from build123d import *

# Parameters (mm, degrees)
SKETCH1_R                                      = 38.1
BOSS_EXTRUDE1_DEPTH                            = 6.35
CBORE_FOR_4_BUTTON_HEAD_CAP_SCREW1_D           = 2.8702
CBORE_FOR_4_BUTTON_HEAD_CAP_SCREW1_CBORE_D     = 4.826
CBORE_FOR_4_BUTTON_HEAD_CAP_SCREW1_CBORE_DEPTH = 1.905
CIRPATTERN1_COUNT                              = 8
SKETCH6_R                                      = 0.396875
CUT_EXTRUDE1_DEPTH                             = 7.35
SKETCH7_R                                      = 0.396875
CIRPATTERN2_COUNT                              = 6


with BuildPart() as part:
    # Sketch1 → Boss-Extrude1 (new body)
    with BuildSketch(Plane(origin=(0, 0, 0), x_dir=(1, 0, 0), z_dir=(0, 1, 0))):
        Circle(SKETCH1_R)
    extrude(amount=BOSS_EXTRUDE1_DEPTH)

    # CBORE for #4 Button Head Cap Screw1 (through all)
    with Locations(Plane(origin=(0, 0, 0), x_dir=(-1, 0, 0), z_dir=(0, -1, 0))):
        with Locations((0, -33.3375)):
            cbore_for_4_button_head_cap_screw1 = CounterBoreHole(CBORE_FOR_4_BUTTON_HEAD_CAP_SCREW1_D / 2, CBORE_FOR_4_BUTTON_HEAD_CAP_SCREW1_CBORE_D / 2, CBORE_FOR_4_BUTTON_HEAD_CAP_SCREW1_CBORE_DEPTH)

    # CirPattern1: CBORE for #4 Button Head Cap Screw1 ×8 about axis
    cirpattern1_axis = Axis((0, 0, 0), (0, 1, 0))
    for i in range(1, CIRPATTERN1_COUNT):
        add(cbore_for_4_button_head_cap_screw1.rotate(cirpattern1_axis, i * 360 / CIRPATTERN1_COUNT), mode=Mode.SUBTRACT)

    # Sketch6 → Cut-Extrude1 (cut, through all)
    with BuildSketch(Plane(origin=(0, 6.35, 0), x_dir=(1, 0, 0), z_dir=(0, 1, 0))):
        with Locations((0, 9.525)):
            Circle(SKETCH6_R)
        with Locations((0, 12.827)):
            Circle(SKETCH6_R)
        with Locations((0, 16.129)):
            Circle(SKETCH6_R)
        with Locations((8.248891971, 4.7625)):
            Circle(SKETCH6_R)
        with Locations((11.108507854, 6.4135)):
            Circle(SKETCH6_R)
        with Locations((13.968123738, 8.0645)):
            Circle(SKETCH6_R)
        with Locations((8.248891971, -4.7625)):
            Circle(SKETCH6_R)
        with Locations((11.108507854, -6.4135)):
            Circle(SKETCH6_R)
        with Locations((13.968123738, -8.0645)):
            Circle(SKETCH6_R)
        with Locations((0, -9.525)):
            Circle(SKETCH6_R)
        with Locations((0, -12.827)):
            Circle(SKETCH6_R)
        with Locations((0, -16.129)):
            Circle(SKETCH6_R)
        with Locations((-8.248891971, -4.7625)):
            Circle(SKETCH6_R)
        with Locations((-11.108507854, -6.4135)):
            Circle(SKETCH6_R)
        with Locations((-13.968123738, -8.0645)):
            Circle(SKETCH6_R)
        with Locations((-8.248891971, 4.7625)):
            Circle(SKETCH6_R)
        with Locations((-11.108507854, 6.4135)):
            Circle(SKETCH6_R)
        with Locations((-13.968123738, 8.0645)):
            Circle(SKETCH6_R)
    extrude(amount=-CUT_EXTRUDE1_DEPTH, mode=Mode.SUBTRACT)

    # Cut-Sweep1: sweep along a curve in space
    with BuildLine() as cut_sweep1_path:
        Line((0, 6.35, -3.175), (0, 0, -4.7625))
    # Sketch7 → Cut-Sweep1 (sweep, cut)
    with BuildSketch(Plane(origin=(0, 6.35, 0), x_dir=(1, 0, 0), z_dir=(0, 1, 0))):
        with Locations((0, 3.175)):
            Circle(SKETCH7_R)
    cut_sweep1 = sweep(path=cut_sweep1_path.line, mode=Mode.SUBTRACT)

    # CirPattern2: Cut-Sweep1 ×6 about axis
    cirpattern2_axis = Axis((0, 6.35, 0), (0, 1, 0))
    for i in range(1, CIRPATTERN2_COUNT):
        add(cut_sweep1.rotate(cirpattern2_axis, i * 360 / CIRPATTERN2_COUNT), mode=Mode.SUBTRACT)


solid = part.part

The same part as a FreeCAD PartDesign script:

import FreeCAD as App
import Part
import Sketcher
from FreeCAD import Vector
Q = App.Units.Quantity

doc = App.newDocument("Part")
params = doc.addObject("Spreadsheet::Sheet", "Params")
for row, (alias, value) in enumerate([
    ("sketch1_diameter", "3 in"),
    ("pad1_length", "0.25 in"),
    ("sketch2_diameter", "0.113 in"),
    ("hole_diameter", "0.113 in"),
    ("hole_cbore_diameter", "0.19 in"),
    ("hole_cbore_depth", "0.075 in"),
    ("sketch3_diameter", "0.03125 in"),
    ("sketch4_diameter", "0.03125 in"),
], start=1):
    params.set(f"A{row}", alias)
    params.set(f"B{row}", "=" + value)
    params.setAlias(f"B{row}", alias)

body = doc.addObject("PartDesign::Body", "Body")

# Sketch on XZ plane
sketch1 = body.newObject("Sketcher::SketchObject", "Sketch")
sketch1.AttachmentSupport = (doc.getObject("XZ_Plane"), [""])
sketch1.MapMode = "FlatFace"
sketch1.addGeometry(Part.Circle(Vector(0, 0, 0), Vector(0, 0, 1), 38), False)
sketch1.addConstraint([
    Sketcher.Constraint("Coincident", 0, 3, -1, 1),
    Sketcher.Constraint("Diameter", 0, Q("3 in")),
])
sketch1.setExpression("Constraints[1]", "Params.sketch1_diameter")
pad1 = body.newObject("PartDesign::Pad", "Pad")
pad1.Profile = sketch1
pad1.setExpression("Length", "Params.pad1_length")
pad1.Reversed = True

# Sketch on XZ plane
sketch2 = body.newObject("Sketcher::SketchObject", "Sketch001")
sketch2.AttachmentSupport = (doc.getObject("XZ_Plane"), [""])
sketch2.MapMode = "FlatFace"
sketch2.addGeometry(Part.Circle(Vector(0, 33.3, 0), Vector(0, 0, 1), 1.4), False)
sketch2.addConstraint([
    Sketcher.Constraint("PointOnObject", 0, 3, -2),
    Sketcher.Constraint("Diameter", 0, Q("0.113 in")),
    Sketcher.Constraint("DistanceY", -1, 1, 0, 3, Q("1.3125 in")),
])
sketch2.setExpression("Constraints[1]", "Params.sketch2_diameter")
doc.recompute()
hole = body.newObject("PartDesign::Hole", "Hole")
hole.Profile = sketch2
hole.ThreadType = "None"
hole.setExpression("Diameter", "Params.hole_diameter")
hole.DepthType = "ThroughAll"
hole.HoleCutType = "Counterbore"
hole.setExpression("HoleCutDiameter", "Params.hole_cbore_diameter")
hole.setExpression("HoleCutDepth", "Params.hole_cbore_depth")
doc.recompute()

polarpattern = body.newObject("PartDesign::PolarPattern", "PolarPattern")
polarpattern.Originals = [hole]
polarpattern.Axis = (doc.getObject("Y_Axis"), [""])
polarpattern.Angle = 360
polarpattern.Occurrences = 8
body.Tip = polarpattern

# Sketch on XZ plane
sketch3 = body.newObject("Sketcher::SketchObject", "Sketch002")
sketch3.AttachmentSupport = (doc.getObject("XZ_Plane"), [""])
sketch3.MapMode = "FlatFace"
sketch3.AttachmentOffset = App.Placement(Vector(0, 0, -0.25 * 25.4), App.Rotation())
sketch3.addGeometry([
    Part.Circle(Vector(0, -9.53, 0), Vector(0, 0, 1), 0.4),  # 0
    Part.Circle(Vector(0, -12.83, 0), Vector(0, 0, 1), 0.4),  # 1
    Part.Circle(Vector(0, -16.13, 0), Vector(0, 0, 1), 0.4),  # 2
    Part.Circle(Vector(8.25, -4.76, 0), Vector(0, 0, 1), 0.4),  # 3
    Part.Circle(Vector(11.11, -6.41, 0), Vector(0, 0, 1), 0.4),  # 4
    Part.Circle(Vector(13.97, -8.06, 0), Vector(0, 0, 1), 0.4),  # 5
    Part.Circle(Vector(8.25, 4.76, 0), Vector(0, 0, 1), 0.4),  # 6
    Part.Circle(Vector(11.11, 6.41, 0), Vector(0, 0, 1), 0.4),  # 7
    Part.Circle(Vector(13.97, 8.06, 0), Vector(0, 0, 1), 0.4),  # 8
    Part.Circle(Vector(0, 9.53, 0), Vector(0, 0, 1), 0.4),  # 9
    Part.Circle(Vector(0, 12.83, 0), Vector(0, 0, 1), 0.4),  # 10
    Part.Circle(Vector(0, 16.13, 0), Vector(0, 0, 1), 0.4),  # 11
    Part.Circle(Vector(-8.25, 4.76, 0), Vector(0, 0, 1), 0.4),  # 12
    Part.Circle(Vector(-11.11, 6.41, 0), Vector(0, 0, 1), 0.4),  # 13
    Part.Circle(Vector(-13.97, 8.06, 0), Vector(0, 0, 1), 0.4),  # 14
    Part.Circle(Vector(-8.25, -4.76, 0), Vector(0, 0, 1), 0.4),  # 15
    Part.Circle(Vector(-11.11, -6.41, 0), Vector(0, 0, 1), 0.4),  # 16
    Part.Circle(Vector(-13.97, -8.06, 0), Vector(0, 0, 1), 0.4),  # 17
], False)
sketch3.addConstraint([
    Sketcher.Constraint("Equal", 0, 1),
    Sketcher.Constraint("Equal", 1, 2),
    Sketcher.Constraint("Equal", 2, 3),
    Sketcher.Constraint("Equal", 3, 4),
    Sketcher.Constraint("Equal", 4, 5),
    Sketcher.Constraint("Equal", 5, 6),
    Sketcher.Constraint("Equal", 6, 7),
    Sketcher.Constraint("Equal", 7, 8),
    Sketcher.Constraint("Equal", 8, 9),
    Sketcher.Constraint("Equal", 9, 10),
    Sketcher.Constraint("Equal", 10, 11),
    Sketcher.Constraint("Equal", 11, 12),
    Sketcher.Constraint("Equal", 12, 13),
    Sketcher.Constraint("Equal", 13, 14),
    Sketcher.Constraint("Equal", 14, 15),
    Sketcher.Constraint("Equal", 15, 16),
    Sketcher.Constraint("Equal", 16, 17),
    Sketcher.Constraint("Symmetric", 0, 3, 9, 3, -1, 1),
    Sketcher.Constraint("Symmetric", 1, 3, 10, 3, -1, 1),
    Sketcher.Constraint("Symmetric", 2, 3, 11, 3, -1, 1),
    Sketcher.Constraint("Symmetric", 3, 3, 12, 3, -1, 1),
    Sketcher.Constraint("Symmetric", 4, 3, 13, 3, -1, 1),
    Sketcher.Constraint("Symmetric", 5, 3, 14, 3, -1, 1),
    Sketcher.Constraint("Symmetric", 6, 3, 15, 3, -1, 1),
    Sketcher.Constraint("Symmetric", 7, 3, 16, 3, -1, 1),
    Sketcher.Constraint("Symmetric", 8, 3, 17, 3, -1, 1),
    Sketcher.Constraint("Symmetric", 6, 3, 12, 3, -2),
    Sketcher.Constraint("Symmetric", 7, 3, 13, 3, -2),
    Sketcher.Constraint("Symmetric", 8, 3, 14, 3, -2),
    Sketcher.Constraint("PointOnObject", 0, 3, -2),
    Sketcher.Constraint("PointOnObject", 1, 3, -2),
    Sketcher.Constraint("PointOnObject", 2, 3, -2),
    Sketcher.Constraint("Diameter", 0, Q("0.03125 in")),
    Sketcher.Constraint("DistanceY", 1, 3, 0, 3, Q("0.13 in")),
    Sketcher.Constraint("DistanceY", 2, 3, 1, 3, Q("0.13 in")),
    Sketcher.Constraint("DistanceY", 5, 3, 3, 3, Q("0.13 in")),
    Sketcher.Constraint("DistanceY", 4, 3, 6, 3, Q("0.44 in")),
    Sketcher.Constraint("DistanceY", 0, 3, 9, 3, Q("0.75 in")),
    Sketcher.Constraint("DistanceY", 3, 3, -1, 1, Q("0.1875 in")),
    Sketcher.Constraint("DistanceX", 13, 3, 6, 3, 19.3574),
    Sketcher.Constraint("DistanceX", -1, 1, 3, 3, 8.248892),
    Sketcher.Constraint("DistanceX", 3, 3, 5, 3, 5.719232),
])
sketch3.setExpression("Constraints[32]", "Params.sketch3_diameter")
pocket1 = body.newObject("PartDesign::Pocket", "Pocket")
pocket1.Profile = sketch3
pocket1.Type = "ThroughAll"
pocket1.Reversed = True

# Sketch on XZ plane
sketch4 = body.newObject("Sketcher::SketchObject", "Sketch003")
sketch4.AttachmentSupport = (doc.getObject("XZ_Plane"), [""])
sketch4.MapMode = "FlatFace"
sketch4.AttachmentOffset = App.Placement(Vector(0, 0, -0.25 * 25.4), App.Rotation())
sketch4.addGeometry(Part.Circle(Vector(0, -3.17, 0), Vector(0, 0, 1), 0.4), False)
sketch4.addConstraint([
    Sketcher.Constraint("PointOnObject", 0, 3, -2),
    Sketcher.Constraint("Diameter", 0, Q("0.03125 in")),
    Sketcher.Constraint("DistanceY", 0, 3, -1, 1, Q("0.125 in")),
])
sketch4.setExpression("Constraints[1]", "Params.sketch4_diameter")

# Sketch on an angled plane
sketch5 = body.newObject("Sketcher::SketchObject", "Sketch004")
sketch5.Placement = App.Placement(Vector(0, 1.120588, -4.482353), App.Rotation(Vector(0, 0.9701425, 0.242535625), Vector(1, 0, 0), Vector(0, 0.242535625, -0.9701425), "ZXY"))
sketch5.addGeometry(Part.LineSegment(Vector(5, 0, 0), Vector(-1, 0, 0)), False)
sketch5.addConstraint([
    Sketcher.Constraint("Horizontal", 0),
    Sketcher.Constraint("PointOnObject", 0, 1, -1),
    Sketcher.Constraint("DistanceX", 0, 2, 0, 1, 6.54543),
    Sketcher.Constraint("DistanceX", -1, 1, 0, 1, 5.390354),
])
doc.recompute()

subtractivepipe = body.newObject("PartDesign::SubtractivePipe", "SubtractivePipe")
subtractivepipe.Profile = sketch4
subtractivepipe.Spine = (sketch5, ["Edge1"])
doc.recompute()

polarpattern2 = body.newObject("PartDesign::PolarPattern", "PolarPattern001")
polarpattern2.Originals = [subtractivepipe]
polarpattern2.Axis = (doc.getObject("Y_Axis"), [""])
polarpattern2.Angle = 360
polarpattern2.Occurrences = 6
body.Tip = polarpattern2

doc.recompute()
